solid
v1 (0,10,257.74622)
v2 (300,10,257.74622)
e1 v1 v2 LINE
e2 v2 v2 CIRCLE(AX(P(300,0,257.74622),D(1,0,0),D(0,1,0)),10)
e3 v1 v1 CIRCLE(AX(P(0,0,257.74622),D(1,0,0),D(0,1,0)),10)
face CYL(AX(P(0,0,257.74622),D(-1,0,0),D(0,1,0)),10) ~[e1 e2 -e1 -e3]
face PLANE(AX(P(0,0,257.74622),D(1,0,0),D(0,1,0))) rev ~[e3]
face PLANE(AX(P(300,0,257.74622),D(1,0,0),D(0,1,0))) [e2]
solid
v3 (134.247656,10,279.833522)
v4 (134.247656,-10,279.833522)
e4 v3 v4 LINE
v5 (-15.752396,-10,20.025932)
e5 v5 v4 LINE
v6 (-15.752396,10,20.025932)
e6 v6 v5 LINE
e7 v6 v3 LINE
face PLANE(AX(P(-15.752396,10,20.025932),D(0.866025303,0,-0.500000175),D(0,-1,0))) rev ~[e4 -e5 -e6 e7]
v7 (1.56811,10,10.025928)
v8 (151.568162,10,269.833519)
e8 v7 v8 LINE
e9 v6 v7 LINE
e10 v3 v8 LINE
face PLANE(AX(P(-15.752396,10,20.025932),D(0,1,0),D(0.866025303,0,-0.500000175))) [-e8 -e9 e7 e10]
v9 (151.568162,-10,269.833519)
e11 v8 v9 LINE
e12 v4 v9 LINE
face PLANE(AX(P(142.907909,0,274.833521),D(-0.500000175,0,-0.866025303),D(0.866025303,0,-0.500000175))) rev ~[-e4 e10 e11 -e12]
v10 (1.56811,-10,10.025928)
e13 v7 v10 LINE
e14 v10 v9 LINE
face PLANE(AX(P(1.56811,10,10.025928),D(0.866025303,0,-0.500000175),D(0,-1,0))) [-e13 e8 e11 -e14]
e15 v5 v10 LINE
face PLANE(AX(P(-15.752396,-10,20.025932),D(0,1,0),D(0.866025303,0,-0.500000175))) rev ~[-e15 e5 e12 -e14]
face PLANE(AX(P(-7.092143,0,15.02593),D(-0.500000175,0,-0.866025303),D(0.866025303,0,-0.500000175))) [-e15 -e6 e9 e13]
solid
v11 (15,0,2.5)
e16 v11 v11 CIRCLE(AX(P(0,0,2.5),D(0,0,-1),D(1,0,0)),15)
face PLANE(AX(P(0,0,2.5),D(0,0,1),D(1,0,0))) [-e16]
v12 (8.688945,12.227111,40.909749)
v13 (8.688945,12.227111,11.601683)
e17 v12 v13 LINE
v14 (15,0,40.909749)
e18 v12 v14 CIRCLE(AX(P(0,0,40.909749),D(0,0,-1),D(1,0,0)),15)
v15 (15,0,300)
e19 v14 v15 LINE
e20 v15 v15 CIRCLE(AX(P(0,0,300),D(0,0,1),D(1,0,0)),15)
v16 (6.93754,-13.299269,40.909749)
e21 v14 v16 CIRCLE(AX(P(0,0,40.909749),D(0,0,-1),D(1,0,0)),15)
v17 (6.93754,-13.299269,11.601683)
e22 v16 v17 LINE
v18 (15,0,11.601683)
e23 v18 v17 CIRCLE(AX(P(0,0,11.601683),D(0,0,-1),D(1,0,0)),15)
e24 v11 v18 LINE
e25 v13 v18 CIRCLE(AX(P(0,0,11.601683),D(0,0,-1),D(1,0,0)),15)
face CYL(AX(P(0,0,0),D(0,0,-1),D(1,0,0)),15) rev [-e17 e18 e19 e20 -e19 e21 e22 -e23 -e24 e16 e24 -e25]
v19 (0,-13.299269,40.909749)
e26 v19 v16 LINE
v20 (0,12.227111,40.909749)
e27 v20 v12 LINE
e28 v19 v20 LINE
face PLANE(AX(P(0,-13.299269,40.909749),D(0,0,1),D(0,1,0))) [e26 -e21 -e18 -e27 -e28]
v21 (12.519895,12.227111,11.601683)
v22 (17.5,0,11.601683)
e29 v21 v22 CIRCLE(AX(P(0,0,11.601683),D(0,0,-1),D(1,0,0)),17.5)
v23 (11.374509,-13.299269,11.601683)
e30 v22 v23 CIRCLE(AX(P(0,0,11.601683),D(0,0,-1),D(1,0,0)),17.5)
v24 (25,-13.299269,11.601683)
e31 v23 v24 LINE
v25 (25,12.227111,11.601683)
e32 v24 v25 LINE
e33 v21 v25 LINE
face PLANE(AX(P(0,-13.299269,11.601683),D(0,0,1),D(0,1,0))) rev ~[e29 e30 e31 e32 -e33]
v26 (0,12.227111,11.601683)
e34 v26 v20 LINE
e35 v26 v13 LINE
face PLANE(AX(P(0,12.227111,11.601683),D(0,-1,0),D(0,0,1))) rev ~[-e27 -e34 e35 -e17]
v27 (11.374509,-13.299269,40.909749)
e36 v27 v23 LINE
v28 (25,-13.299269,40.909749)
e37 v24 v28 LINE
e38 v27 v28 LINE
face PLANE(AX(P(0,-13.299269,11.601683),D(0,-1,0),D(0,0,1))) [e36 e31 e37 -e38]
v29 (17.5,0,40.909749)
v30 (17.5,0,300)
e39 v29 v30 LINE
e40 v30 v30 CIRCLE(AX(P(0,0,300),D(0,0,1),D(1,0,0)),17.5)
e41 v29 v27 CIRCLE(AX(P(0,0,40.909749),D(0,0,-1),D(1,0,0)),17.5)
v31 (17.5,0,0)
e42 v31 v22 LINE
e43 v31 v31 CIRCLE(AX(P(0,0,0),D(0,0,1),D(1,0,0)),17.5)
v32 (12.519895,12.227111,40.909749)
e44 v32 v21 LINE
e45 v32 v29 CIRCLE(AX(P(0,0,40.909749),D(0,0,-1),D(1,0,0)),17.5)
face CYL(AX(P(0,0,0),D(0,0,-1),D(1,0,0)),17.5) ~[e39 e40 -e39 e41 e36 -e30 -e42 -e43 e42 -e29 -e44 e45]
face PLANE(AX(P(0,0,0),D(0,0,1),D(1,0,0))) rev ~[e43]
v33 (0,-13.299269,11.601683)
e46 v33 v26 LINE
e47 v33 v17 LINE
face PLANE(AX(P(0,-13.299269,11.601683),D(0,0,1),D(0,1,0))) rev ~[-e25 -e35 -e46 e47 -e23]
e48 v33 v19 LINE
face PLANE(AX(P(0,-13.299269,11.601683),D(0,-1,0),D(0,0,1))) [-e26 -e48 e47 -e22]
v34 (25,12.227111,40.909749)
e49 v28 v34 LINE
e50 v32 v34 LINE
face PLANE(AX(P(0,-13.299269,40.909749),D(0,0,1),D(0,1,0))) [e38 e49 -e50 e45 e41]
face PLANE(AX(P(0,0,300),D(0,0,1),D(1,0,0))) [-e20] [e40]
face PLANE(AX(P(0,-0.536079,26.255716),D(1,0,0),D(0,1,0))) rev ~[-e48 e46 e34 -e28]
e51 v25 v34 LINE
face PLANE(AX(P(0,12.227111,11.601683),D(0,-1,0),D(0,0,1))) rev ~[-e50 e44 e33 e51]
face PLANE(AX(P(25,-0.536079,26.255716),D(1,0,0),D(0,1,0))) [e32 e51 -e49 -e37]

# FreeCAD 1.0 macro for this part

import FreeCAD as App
import Part
import Sketcher
from FreeCAD import Vector


def faces_at(feature, points):
    """Names of the faces that lie closest to the given points."""
    faces = feature.Shape.Faces
    near = lambda p: min(range(len(faces)), key=lambda i: faces[i].distToShape(Part.Vertex(*p))[0])
    return sorted({f"Face{near(p) + 1}" for p in points})


def add_polygon(sketch, points):
    """Adds a closed chain of lines whose ends are joined by coincident constraints."""
    first, n = sketch.GeometryCount, len(points)
    for a, b in zip(points, points[1:] + points[:1]):
        sketch.addGeometry(Part.LineSegment(App.Vector(*a, 0), App.Vector(*b, 0)), False)
    for i in range(n):
        sketch.addConstraint(Sketcher.Constraint("Coincident", first + i, 2, first + (i + 1) % n, 1))

doc = App.newDocument("Part")
body = doc.addObject("PartDesign::Body", "Body")

# Sketch on XY plane
sketch1 = body.newObject("Sketcher::SketchObject", "Sketch")
sketch1.AttachmentSupport = (doc.getObject("XY_Plane"), [""])
sketch1.MapMode = "FlatFace"
sketch1.addGeometry(Part.Circle(Vector(0, 0, 0), Vector(0, 0, 1), 17.5), False)
sketch1.addConstraint([
    Sketcher.Constraint("Coincident", 0, 3, -1, 1),
    Sketcher.Constraint("Diameter", 0, 35.0),
])
pad1 = body.newObject("PartDesign::Pad", "Pad")
pad1.Profile = sketch1
pad1.Length = 300
doc.recompute()

thickness = body.newObject("PartDesign::Thickness", "Thickness")
thickness.Base = (pad1, faces_at(pad1, [(0, 0, 300)]))
thickness.Value = 2.5
thickness.Reversed = True
thickness.Join = "Arc"

# Sketch on YZ plane
sketch2 = body.newObject("Sketcher::SketchObject", "Sketch001")
sketch2.AttachmentSupport = (doc.getObject("YZ_Plane"), [""])
sketch2.MapMode = "FlatFace"
add_polygon(sketch2, [(-13.299269, 40.909749), (-13.299269, 11.601683), (12.227111, 11.601683), (12.227111, 40.909749)])  # lines 0-3
sketch2.addConstraint([
    Sketcher.Constraint("Vertical", 0),
    Sketcher.Constraint("Horizontal", 1),
    Sketcher.Constraint("Vertical", 2),
    Sketcher.Constraint("Horizontal", 3),
    Sketcher.Constraint("DistanceX", 1, 1, 1, 2, 25.526379),
    Sketcher.Constraint("DistanceY", 0, 2, 0, 1, 29.308066),
    Sketcher.Constraint("DistanceX", 0, 2, -1, 1, 13.299269),
    Sketcher.Constraint("DistanceY", -1, 1, 2, 2, 40.909749),
])
pad2 = body.newObject("PartDesign::Pad", "Pad001")
pad2.Profile = sketch2
pad2.Length = 25
body2 = doc.addObject("PartDesign::Body", "Body001")

# Sketch on YZ plane
sketch3 = body2.newObject("Sketcher::SketchObject", "Sketch002")
sketch3.AttachmentSupport = (doc.getObject("YZ_Plane001"), [""])
sketch3.MapMode = "FlatFace"
sketch3.addGeometry(Part.Circle(Vector(0, 257.74622, 0), Vector(0, 0, 1), 10), False)
sketch3.addConstraint([
    Sketcher.Constraint("PointOnObject", 0, 3, -2),
    Sketcher.Constraint("Diameter", 0, 20.0),
    Sketcher.Constraint("DistanceY", -1, 1, 0, 3, 257.74622),
])
pad3 = body2.newObject("PartDesign::Pad", "Pad002")
pad3.Profile = sketch3
pad3.Length = 300
body3 = doc.addObject("PartDesign::Body", "Body002")

# Sketch on an angled plane
sketch4 = body3.newObject("Sketcher::SketchObject", "Sketch003")
sketch4.Placement = App.Placement(Vector(4.733381, 0, 8.198457), App.Rotation(Vector(0.866025303, 0, -0.500000175), Vector(0, -1, 0), Vector(-0.500000175, 0, -0.866025303), "ZXY"))
add_polygon(sketch4, [(-23.654941, 10), (-23.654941, -10), (-3.654941, -10), (-3.654941, 10)])  # lines 0-3
sketch4.addConstraint([
    Sketcher.Constraint("Vertical", 0),
    Sketcher.Constraint("Horizontal", 1),
    Sketcher.Constraint("Vertical", 2),
    Sketcher.Constraint("Horizontal", 3),
    Sketcher.Constraint("Equal", 3, 0),
    Sketcher.Constraint("DistanceX", 1, 1, 1, 2, 20.0),
    Sketcher.Constraint("DistanceY", 0, 2, -1, 1, 10.0),
    Sketcher.Constraint("DistanceX", 0, 2, -1, 1, 23.654941),
])
pad4 = body3.newObject("PartDesign::Pad", "Pad003")
pad4.Profile = sketch4
pad4.Length = 300
pad4.Reversed = True

doc.recompute()
